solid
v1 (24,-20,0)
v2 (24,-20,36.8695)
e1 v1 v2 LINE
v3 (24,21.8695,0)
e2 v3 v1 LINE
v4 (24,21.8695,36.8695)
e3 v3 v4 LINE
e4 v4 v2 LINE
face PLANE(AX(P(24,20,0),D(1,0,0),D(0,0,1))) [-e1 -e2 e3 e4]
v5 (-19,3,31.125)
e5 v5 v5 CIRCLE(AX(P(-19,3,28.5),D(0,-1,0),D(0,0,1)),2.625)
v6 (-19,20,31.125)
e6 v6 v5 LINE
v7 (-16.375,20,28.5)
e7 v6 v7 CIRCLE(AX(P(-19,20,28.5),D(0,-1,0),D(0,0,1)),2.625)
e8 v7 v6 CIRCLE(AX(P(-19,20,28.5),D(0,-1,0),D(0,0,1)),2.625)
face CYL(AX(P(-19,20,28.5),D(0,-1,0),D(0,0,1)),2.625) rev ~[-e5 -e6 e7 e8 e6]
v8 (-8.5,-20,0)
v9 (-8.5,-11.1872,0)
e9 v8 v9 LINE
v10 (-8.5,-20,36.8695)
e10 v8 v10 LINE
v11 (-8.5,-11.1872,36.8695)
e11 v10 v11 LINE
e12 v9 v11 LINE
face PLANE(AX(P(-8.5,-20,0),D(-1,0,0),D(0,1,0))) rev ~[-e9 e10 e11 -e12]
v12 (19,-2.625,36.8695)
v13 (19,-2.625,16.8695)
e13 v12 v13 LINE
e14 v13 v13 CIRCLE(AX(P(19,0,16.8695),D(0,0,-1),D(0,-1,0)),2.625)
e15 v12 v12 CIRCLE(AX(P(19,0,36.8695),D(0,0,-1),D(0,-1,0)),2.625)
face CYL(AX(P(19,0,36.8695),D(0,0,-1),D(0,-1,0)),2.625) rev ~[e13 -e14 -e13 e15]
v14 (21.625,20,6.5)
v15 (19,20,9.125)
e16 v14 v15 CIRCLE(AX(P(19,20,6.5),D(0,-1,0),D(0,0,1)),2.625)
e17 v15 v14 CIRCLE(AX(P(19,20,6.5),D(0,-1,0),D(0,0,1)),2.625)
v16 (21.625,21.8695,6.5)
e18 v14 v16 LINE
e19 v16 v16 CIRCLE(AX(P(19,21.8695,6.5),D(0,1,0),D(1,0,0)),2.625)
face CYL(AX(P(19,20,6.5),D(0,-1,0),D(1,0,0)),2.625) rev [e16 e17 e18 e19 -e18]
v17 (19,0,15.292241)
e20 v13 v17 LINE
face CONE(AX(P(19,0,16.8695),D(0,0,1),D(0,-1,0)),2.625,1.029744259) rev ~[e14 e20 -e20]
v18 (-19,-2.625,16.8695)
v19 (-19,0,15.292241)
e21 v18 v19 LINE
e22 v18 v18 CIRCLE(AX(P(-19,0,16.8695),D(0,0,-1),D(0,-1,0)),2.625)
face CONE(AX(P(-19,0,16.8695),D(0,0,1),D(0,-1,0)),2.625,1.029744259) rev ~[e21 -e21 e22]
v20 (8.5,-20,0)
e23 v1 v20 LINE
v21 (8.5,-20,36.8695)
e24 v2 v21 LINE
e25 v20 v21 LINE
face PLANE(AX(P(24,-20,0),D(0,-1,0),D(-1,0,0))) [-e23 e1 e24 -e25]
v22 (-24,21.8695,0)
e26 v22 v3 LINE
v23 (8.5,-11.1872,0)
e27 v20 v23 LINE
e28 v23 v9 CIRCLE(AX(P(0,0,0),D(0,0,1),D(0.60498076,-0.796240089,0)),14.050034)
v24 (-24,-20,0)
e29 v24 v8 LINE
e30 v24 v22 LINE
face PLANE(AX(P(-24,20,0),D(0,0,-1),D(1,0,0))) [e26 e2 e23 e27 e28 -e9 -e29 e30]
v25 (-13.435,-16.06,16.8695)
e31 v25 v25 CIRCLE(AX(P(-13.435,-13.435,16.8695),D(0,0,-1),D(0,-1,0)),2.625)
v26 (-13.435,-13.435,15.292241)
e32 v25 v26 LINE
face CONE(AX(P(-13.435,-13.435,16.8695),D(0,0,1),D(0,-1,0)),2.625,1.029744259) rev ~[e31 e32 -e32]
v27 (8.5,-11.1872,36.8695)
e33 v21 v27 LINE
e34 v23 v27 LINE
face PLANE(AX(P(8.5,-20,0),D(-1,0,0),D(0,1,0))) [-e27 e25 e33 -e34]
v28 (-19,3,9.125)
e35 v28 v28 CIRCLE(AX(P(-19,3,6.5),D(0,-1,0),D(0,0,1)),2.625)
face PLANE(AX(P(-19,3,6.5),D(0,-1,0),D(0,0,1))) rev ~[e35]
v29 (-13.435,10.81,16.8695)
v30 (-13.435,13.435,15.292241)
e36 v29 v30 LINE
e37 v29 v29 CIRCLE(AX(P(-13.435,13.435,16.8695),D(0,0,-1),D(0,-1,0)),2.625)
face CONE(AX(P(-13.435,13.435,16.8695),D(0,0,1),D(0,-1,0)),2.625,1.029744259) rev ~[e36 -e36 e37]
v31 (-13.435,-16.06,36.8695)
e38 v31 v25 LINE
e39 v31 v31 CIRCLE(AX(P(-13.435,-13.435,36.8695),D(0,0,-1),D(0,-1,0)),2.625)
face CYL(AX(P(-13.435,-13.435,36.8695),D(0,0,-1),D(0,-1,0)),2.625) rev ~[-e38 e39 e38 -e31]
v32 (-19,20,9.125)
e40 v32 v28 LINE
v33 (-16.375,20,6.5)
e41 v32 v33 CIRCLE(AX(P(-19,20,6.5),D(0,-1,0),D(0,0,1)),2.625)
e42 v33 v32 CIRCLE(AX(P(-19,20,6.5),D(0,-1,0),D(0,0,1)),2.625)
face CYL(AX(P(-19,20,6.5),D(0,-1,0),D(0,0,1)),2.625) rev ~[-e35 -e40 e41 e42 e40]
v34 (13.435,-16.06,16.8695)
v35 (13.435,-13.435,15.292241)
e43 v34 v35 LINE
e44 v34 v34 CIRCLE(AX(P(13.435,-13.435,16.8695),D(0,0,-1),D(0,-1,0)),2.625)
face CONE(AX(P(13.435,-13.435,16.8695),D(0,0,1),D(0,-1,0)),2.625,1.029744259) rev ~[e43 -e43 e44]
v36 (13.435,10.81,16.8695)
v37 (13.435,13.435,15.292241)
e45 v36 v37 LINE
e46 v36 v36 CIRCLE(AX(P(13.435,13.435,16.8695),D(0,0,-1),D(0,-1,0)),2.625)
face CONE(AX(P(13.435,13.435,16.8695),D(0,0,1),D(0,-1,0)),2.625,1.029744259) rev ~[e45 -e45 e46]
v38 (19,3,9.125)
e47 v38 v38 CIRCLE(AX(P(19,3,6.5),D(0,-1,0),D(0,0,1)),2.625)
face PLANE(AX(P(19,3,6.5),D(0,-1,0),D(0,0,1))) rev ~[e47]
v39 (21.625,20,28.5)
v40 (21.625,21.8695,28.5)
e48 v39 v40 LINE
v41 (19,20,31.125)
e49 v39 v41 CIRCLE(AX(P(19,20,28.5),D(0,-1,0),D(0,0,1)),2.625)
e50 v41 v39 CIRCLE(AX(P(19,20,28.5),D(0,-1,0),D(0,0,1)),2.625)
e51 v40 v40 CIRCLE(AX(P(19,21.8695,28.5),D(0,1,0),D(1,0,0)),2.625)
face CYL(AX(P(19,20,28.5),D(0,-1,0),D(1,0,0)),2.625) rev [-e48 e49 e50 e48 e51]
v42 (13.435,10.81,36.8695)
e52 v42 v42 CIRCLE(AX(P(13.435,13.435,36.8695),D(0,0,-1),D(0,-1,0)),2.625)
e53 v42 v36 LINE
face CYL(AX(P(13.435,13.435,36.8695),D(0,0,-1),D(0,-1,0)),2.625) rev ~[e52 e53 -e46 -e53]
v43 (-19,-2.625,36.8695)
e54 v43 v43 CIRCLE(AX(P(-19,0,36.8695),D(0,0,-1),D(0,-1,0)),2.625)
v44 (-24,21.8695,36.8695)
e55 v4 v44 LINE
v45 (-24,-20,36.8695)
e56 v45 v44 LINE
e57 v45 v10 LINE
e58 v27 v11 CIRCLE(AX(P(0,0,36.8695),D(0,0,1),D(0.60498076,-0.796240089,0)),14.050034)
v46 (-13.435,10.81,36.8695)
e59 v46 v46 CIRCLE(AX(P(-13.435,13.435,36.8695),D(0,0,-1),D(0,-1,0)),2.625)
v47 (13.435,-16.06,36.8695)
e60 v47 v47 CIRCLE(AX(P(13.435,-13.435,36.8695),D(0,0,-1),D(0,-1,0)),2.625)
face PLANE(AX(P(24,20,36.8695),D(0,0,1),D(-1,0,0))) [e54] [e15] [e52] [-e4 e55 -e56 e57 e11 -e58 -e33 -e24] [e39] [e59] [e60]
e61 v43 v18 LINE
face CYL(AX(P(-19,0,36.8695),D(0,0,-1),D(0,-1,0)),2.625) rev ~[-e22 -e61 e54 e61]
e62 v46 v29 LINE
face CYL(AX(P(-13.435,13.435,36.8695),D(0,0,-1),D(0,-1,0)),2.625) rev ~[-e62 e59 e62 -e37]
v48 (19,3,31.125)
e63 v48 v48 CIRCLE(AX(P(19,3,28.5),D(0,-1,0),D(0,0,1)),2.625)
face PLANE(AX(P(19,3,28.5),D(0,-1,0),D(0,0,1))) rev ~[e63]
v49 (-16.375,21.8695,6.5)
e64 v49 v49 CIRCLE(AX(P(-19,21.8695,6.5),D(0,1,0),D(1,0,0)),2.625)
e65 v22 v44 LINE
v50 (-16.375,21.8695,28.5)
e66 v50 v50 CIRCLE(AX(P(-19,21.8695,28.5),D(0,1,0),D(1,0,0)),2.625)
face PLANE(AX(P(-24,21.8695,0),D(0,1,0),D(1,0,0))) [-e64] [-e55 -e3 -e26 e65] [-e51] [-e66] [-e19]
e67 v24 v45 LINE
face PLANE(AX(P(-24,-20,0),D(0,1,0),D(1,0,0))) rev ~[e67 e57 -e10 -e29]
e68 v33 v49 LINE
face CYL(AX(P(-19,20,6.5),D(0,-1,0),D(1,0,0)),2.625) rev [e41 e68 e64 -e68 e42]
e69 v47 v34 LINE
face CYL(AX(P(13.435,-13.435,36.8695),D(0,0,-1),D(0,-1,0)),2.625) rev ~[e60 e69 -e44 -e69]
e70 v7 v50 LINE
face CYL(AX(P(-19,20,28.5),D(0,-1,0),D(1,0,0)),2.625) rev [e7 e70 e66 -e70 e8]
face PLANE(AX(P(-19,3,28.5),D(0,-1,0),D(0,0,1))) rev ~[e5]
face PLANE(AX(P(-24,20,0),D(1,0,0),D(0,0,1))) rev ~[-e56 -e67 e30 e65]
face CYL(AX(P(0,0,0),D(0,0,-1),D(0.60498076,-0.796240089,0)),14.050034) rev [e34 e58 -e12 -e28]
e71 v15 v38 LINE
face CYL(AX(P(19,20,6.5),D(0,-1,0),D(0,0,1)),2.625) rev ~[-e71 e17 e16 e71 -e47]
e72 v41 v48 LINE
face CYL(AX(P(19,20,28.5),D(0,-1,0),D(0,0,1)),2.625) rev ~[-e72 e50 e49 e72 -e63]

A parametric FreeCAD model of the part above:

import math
import FreeCAD as App
import Part
import Sketcher

V = App.Vector
Q = App.Units.Quantity


def add_polygon(sketch, points):
    """Adds a closed chain of lines whose ends are joined by coincident constraints."""
    first, n = sketch.GeometryCount, len(points)
    for a, b in zip(points, points[1:] + points[:1]):
        sketch.addGeometry(Part.LineSegment(App.Vector(*a, 0), App.Vector(*b, 0)), False)
    for i in range(n):
        sketch.addConstraint(Sketcher.Constraint("Coincident", first + i, 2, first + (i + 1) % n, 1))

doc = App.newDocument("Part")
body = doc.addObject("PartDesign::Body", "Body")

sketch1 = doc.addObject("Sketcher::SketchObject", "Sketch")
body.addObject(sketch1)
sketch1.AttachmentSupport = (doc.XY_Plane, [""])
sketch1.MapMode = "FlatFace"
sketch1.addGeometry(Part.LineSegment(V(24, 20, 0), V(-24, 20, 0)), False)
sketch1.addGeometry(Part.LineSegment(V(-24, 20, 0), V(-24, -20, 0)), False)
sketch1.addGeometry(Part.LineSegment(V(-24, -20, 0), V(-8, -20, 0)), False)
sketch1.addGeometry(Part.LineSegment(V(-8, -20, 0), V(-8, -11, 0)), False)
sketch1.addGeometry(Part.ArcOfCircle(Part.Circle(V(0, 0, 0), V(0, 0, 1), 14), math.radians(-53), math.radians(233)), False)
sketch1.addGeometry(Part.LineSegment(V(8, -11, 0), V(8, -20, 0)), False)
sketch1.addGeometry(Part.LineSegment(V(8, -20, 0), V(24, -20, 0)), False)
sketch1.addGeometry(Part.LineSegment(V(24, -20, 0), V(24, 20, 0)), False)
sketch1.addConstraint(Sketcher.Constraint("Coincident", 0, 2, 1, 1))
sketch1.addConstraint(Sketcher.Constraint("Coincident", 1, 2, 2, 1))
sketch1.addConstraint(Sketcher.Constraint("Coincident", 2, 2, 3, 1))
sketch1.addConstraint(Sketcher.Constraint("Coincident", 3, 2, 4, 2))
sketch1.addConstraint(Sketcher.Constraint("Coincident", 4, 1, 5, 1))
sketch1.addConstraint(Sketcher.Constraint("Coincident", 5, 2, 6, 1))
sketch1.addConstraint(Sketcher.Constraint("Coincident", 6, 2, 7, 1))
sketch1.addConstraint(Sketcher.Constraint("Coincident", 7, 2, 0, 1))
sketch1.addConstraint(Sketcher.Constraint("Horizontal", 0))
sketch1.addConstraint(Sketcher.Constraint("Vertical", 1))
sketch1.addConstraint(Sketcher.Constraint("Horizontal", 2))
sketch1.addConstraint(Sketcher.Constraint("Vertical", 3))
sketch1.addConstraint(Sketcher.Constraint("Vertical", 5))
sketch1.addConstraint(Sketcher.Constraint("Horizontal", 6))
sketch1.addConstraint(Sketcher.Constraint("Vertical", 7))
sketch1.addConstraint(Sketcher.Constraint("Coincident", 4, 3, -1, 1))
sketch1.addConstraint(Sketcher.Constraint("Symmetric", 0, 2, 6, 2, -1, 1))
sketch1.addConstraint(Sketcher.Constraint("Symmetric", 2, 2, 5, 2, -2))
sketch1.addConstraint(Sketcher.Constraint("DistanceX", 0, 2, 0, 1, Q("48 mm")))
sketch1.addConstraint(Sketcher.Constraint("DistanceY", 1, 2, 1, 1, Q("40 mm")))
sketch1.addConstraint(Sketcher.Constraint("Radius", 4, Q("14.05 mm")))
sketch1.addConstraint(Sketcher.Constraint("DistanceX", 2, 1, 2, 2, Q("15.5 mm")))
pad1 = doc.addObject("PartDesign::Pad", "Pad")
body.addObject(pad1)
pad1.Profile = sketch1
pad1.Length = 36.8695

sketch2 = doc.addObject("Sketcher::SketchObject", "Sketch001")
body.addObject(sketch2)
sketch2.AttachmentSupport = (doc.XY_Plane, [""])
sketch2.MapMode = "FlatFace"
sketch2.AttachmentOffset = App.Placement(V(0, 0, 36.8695), App.Rotation())
sketch2.addGeometry(Part.Circle(V(-19, 0, 0), V(0, 0, 1), 2.6), False)
sketch2.addGeometry(Part.Circle(V(-13.4, -13.4, 0), V(0, 0, 1), 2.6), False)
sketch2.addGeometry(Part.Circle(V(-13.4, 13.4, 0), V(0, 0, 1), 2.6), False)
sketch2.addGeometry(Part.Circle(V(13.4, 13.4, 0), V(0, 0, 1), 2.6), False)
sketch2.addGeometry(Part.Circle(V(19, 0, 0), V(0, 0, 1), 2.6), False)
sketch2.addGeometry(Part.Circle(V(13.4, -13.4, 0), V(0, 0, 1), 2.6), False)
sketch2.addConstraint(Sketcher.Constraint("Equal", 0, 1))
sketch2.addConstraint(Sketcher.Constraint("Equal", 1, 2))
sketch2.addConstraint(Sketcher.Constraint("Equal", 2, 3))
sketch2.addConstraint(Sketcher.Constraint("Equal", 3, 4))
sketch2.addConstraint(Sketcher.Constraint("Equal", 4, 5))
sketch2.addConstraint(Sketcher.Constraint("Symmetric", 1, 3, 3, 3, -1, 1))
sketch2.addConstraint(Sketcher.Constraint("Symmetric", 0, 3, 4, 3, -1, 1))
sketch2.addConstraint(Sketcher.Constraint("Symmetric", 2, 3, 5, 3, -1, 1))
sketch2.addConstraint(Sketcher.Constraint("Symmetric", 2, 3, 3, 3, -2))
sketch2.addConstraint(Sketcher.Constraint("PointOnObject", 0, 3, -1))
sketch2.addConstraint(Sketcher.Constraint("Diameter", 0, Q("5.25 mm")))
sketch2.addConstraint(Sketcher.Constraint("DistanceX", 0, 3, -1, 1, Q("19 mm")))
sketch2.addConstraint(Sketcher.Constraint("DistanceY", 1, 3, 2, 3, Q("26.87 mm")))
sketch2.addConstraint(Sketcher.Constraint("DistanceX", 2, 3, 3, 3, Q("26.87 mm")))
doc.recompute()
hole = doc.addObject("PartDesign::Hole", "Hole")
body.addObject(hole)
hole.Profile = sketch2
hole.ThreadType = "None"
hole.Diameter = 5.25
hole.DepthType = "Dimension"
hole.Depth = 20
hole.DrillPoint = "Angled"
hole.DrillPointAngle = 118

sketch3 = doc.addObject("Sketcher::SketchObject", "Sketch002")
body.addObject(sketch3)
sketch3.AttachmentSupport = (doc.XZ_Plane, [""])
sketch3.MapMode = "FlatFace"
sketch3.AttachmentOffset = App.Placement(V(0, 0, -20), App.Rotation())
sketch3.addGeometry(Part.Circle(V(-19, 6.5, 0), V(0, 0, 1), 2.6), False)
sketch3.addGeometry(Part.Circle(V(19, 6.5, 0), V(0, 0, 1), 2.6), False)
sketch3.addGeometry(Part.Circle(V(-19, 28.5, 0), V(0, 0, 1), 2.6), False)
sketch3.addGeometry(Part.Circle(V(19, 28.5, 0), V(0, 0, 1), 2.6), False)
sketch3.addConstraint(Sketcher.Constraint("Equal", 0, 1))
sketch3.addConstraint(Sketcher.Constraint("Equal", 1, 2))
sketch3.addConstraint(Sketcher.Constraint("Equal", 2, 3))
sketch3.addConstraint(Sketcher.Constraint("Symmetric", 0, 3, 1, 3, -2))
sketch3.addConstraint(Sketcher.Constraint("Symmetric", 2, 3, 3, 3, -2))
sketch3.addConstraint(Sketcher.Constraint("Vertical", 0, 3, 2, 3))
sketch3.addConstraint(Sketcher.Constraint("Diameter", 0, Q("5.25 mm")))
sketch3.addConstraint(Sketcher.Constraint("DistanceX", 0, 3, -1, 1, Q("19 mm")))
sketch3.addConstraint(Sketcher.Constraint("DistanceY", 0, 3, 2, 3, Q("22 mm")))
sketch3.addConstraint(Sketcher.Constraint("DistanceY", -1, 1, 0, 3, Q("6.5 mm")))
doc.recompute()
hole2 = doc.addObject("PartDesign::Hole", "Hole001")
body.addObject(hole2)
hole2.Profile = sketch3
hole2.ThreadType = "None"
hole2.Diameter = 5.25
hole2.DepthType = "Dimension"
hole2.Depth = 17
hole2.DrillPoint = "Flat"
hole2.Reversed = True

sketch4 = doc.addObject("Sketcher::SketchObject", "Sketch003")
body.addObject(sketch4)
sketch4.AttachmentSupport = (doc.XZ_Plane, [""])
sketch4.MapMode = "FlatFace"
sketch4.AttachmentOffset = App.Placement(V(0, 0, -20), App.Rotation())
add_polygon(sketch4, [(24, 0), (-24, 0), (-24, 36.9), (24, 36.9)])
sketch4.addGeometry(Part.Circle(V(-19, 28.5, 0), V(0, 0, 1), 2.6), False)
sketch4.addGeometry(Part.Circle(V(19, 28.5, 0), V(0, 0, 1), 2.6), False)
sketch4.addGeometry(Part.Circle(V(-19, 6.5, 0), V(0, 0, 1), 2.6), False)
sketch4.addGeometry(Part.Circle(V(19, 6.5, 0), V(0, 0, 1), 2.6), False)
sketch4.addConstraint(Sketcher.Constraint("Horizontal", 0))
sketch4.addConstraint(Sketcher.Constraint("Vertical", 1))
sketch4.addConstraint(Sketcher.Constraint("Horizontal", 2))
sketch4.addConstraint(Sketcher.Constraint("Vertical", 3))
sketch4.addConstraint(Sketcher.Constraint("Equal", 4, 5))
sketch4.addConstraint(Sketcher.Constraint("Equal", 5, 6))
sketch4.addConstraint(Sketcher.Constraint("Equal", 6, 7))
sketch4.addConstraint(Sketcher.Constraint("Symmetric", 0, 2, 3, 2, -1, 1))
sketch4.addConstraint(Sketcher.Constraint("Symmetric", 4, 3, 5, 3, -2))
sketch4.addConstraint(Sketcher.Constraint("Symmetric", 6, 3, 7, 3, -2))
sketch4.addConstraint(Sketcher.Constraint("Vertical", 4, 3, 6, 3))
sketch4.addConstraint(Sketcher.Constraint("Diameter", 4, Q("5.25 mm")))
sketch4.addConstraint(Sketcher.Constraint("DistanceX", 0, 2, 0, 1, Q("48 mm")))
sketch4.addConstraint(Sketcher.Constraint("DistanceX", 4, 3, -1, 1, Q("19 mm")))
sketch4.addConstraint(Sketcher.Constraint("DistanceY", 6, 3, 4, 3, Q("22 mm")))
sketch4.addConstraint(Sketcher.Constraint("DistanceY", -1, 1, 4, 3, Q("28.5 mm")))
sketch4.addConstraint(Sketcher.Constraint("DistanceY", 1, 1, 1, 2, Q("36.8695 mm")))
pad2 = doc.addObject("PartDesign::Pad", "Pad001")
body.addObject(pad2)
pad2.Profile = sketch4
pad2.Length = 1.8695
pad2.Reversed = True

doc.recompute()
